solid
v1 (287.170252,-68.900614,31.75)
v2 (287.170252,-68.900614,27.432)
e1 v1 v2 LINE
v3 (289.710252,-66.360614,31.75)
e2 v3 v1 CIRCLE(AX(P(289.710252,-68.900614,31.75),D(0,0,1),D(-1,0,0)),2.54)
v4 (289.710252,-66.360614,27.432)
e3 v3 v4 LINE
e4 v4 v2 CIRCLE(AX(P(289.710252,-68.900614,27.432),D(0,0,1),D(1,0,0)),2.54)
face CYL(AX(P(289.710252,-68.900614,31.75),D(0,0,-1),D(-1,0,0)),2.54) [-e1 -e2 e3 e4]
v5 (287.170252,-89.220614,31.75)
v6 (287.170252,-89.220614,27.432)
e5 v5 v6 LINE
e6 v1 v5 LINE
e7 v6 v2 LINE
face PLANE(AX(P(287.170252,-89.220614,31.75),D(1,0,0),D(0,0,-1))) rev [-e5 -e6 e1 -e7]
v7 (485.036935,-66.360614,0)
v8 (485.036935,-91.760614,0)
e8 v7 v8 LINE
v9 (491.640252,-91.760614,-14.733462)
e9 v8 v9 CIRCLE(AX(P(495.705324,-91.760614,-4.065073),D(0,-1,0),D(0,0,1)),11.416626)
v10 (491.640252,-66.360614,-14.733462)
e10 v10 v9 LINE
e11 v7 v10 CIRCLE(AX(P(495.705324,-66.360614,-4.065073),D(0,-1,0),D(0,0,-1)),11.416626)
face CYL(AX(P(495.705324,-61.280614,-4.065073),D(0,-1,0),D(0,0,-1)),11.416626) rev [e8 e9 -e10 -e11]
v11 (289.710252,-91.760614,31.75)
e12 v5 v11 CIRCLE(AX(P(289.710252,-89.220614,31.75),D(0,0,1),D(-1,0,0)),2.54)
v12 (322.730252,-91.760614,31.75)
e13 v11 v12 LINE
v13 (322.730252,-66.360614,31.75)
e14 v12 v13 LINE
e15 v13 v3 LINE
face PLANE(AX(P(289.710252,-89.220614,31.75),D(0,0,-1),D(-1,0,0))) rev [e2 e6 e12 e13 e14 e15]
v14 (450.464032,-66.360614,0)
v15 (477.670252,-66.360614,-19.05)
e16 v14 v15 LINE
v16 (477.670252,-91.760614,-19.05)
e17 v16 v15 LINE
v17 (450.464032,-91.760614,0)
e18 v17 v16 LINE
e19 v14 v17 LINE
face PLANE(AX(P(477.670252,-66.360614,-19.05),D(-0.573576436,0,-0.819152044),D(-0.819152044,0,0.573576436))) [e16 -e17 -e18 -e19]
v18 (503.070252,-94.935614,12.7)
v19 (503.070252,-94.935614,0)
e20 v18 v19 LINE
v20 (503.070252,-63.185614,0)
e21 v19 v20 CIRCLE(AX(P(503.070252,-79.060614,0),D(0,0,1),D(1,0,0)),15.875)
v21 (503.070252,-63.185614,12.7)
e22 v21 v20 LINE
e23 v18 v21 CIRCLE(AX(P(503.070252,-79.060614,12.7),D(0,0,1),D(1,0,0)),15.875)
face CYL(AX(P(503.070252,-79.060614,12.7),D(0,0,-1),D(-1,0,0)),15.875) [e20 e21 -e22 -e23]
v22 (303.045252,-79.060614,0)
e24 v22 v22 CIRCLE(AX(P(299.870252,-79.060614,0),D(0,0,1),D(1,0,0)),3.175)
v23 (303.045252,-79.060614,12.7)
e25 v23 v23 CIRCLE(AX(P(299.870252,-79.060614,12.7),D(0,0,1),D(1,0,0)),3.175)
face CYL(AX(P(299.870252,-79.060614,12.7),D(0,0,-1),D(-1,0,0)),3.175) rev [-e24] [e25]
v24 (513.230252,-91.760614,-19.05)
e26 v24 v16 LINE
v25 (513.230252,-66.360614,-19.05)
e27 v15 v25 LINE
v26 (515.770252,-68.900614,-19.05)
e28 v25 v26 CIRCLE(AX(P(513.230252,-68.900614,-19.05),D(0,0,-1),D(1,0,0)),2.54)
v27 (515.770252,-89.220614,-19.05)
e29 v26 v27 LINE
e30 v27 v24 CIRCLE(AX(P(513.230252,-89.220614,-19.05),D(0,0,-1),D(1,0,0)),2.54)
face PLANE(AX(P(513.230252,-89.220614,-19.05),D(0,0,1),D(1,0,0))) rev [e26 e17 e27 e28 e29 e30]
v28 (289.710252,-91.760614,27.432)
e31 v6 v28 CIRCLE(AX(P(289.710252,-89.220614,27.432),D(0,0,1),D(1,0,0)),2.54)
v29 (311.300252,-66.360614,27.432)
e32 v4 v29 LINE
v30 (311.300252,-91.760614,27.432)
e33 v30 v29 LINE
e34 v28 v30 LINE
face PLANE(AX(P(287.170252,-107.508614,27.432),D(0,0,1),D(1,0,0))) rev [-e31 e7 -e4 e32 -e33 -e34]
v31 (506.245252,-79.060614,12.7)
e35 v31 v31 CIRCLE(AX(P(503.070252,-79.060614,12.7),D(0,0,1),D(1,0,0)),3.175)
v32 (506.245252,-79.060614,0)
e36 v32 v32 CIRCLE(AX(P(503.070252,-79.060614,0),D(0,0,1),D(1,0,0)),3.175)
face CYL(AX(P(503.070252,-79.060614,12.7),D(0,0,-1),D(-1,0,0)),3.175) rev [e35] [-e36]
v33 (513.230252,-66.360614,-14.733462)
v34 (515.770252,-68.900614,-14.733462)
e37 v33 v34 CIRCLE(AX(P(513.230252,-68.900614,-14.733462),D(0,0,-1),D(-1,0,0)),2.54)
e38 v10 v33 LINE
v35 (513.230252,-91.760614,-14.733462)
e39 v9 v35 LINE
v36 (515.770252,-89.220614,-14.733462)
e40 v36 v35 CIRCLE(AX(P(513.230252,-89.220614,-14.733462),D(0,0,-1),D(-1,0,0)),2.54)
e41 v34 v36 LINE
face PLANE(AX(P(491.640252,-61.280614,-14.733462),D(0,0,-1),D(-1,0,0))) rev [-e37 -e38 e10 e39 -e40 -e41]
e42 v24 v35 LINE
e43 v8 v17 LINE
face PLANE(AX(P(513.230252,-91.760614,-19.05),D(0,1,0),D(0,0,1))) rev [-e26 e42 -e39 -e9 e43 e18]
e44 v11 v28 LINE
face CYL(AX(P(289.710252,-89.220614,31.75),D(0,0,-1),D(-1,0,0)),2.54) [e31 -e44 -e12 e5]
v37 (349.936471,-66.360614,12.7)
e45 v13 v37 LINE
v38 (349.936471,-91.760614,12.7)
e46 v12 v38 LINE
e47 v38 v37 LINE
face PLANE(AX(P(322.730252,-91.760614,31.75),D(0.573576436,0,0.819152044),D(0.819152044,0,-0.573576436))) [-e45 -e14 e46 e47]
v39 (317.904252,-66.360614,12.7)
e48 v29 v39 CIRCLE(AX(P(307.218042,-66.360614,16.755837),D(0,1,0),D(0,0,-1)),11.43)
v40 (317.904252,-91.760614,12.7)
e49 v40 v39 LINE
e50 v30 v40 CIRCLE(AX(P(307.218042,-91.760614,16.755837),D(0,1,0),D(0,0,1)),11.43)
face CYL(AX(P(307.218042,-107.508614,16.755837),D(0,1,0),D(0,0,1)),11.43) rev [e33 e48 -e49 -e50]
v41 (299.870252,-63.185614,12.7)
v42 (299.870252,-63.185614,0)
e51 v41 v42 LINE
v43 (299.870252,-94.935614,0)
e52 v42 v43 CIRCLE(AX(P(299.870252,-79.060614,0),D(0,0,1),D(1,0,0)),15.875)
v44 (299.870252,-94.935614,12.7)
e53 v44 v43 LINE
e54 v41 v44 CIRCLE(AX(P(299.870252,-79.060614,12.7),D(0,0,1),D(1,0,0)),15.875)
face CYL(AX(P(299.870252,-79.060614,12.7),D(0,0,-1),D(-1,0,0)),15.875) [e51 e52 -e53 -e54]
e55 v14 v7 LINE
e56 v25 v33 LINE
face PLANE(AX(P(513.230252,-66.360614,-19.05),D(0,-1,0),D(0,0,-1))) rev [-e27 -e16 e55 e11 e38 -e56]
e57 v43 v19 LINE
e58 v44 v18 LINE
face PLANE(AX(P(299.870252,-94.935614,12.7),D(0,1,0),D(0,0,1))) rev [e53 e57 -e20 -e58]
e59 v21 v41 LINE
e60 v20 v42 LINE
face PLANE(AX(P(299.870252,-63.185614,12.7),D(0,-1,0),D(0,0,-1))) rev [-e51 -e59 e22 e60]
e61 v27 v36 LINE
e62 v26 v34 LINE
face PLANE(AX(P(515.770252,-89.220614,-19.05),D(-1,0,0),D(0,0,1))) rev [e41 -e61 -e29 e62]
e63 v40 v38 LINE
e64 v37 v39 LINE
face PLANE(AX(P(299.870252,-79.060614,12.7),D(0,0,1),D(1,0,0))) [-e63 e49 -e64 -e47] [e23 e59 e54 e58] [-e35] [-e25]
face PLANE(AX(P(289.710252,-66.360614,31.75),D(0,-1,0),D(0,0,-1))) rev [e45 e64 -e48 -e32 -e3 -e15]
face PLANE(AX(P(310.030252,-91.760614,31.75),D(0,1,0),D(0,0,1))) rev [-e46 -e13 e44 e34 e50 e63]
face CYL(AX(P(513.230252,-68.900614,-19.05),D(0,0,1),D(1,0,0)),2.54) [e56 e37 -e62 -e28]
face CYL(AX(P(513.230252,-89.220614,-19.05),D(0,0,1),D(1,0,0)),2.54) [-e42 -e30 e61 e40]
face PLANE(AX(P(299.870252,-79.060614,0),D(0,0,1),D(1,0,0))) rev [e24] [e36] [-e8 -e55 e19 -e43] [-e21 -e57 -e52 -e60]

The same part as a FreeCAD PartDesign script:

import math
import FreeCAD as App
import Part
import Sketcher
Q = App.Units.Quantity


def add_polygon(sketch, points):
    """Adds a closed chain of lines whose ends are joined by coincident constraints."""
    first, n = sketch.GeometryCount, len(points)
    for a, b in zip(points, points[1:] + points[:1]):
        sketch.addGeometry(Part.LineSegment(App.Vector(*a, 0), App.Vector(*b, 0)), False)
    for i in range(n):
        sketch.addConstraint(Sketcher.Constraint("Coincident", first + i, 2, first + (i + 1) % n, 1))

doc = App.newDocument("Part")
params = doc.addObject("Spreadsheet::Sheet", "Params")
for row, (alias, value) in enumerate([
    ("sketch1_diameter", "0.25 in"),
    ("sketch1_width", "8 in"),
    ("sketch1_radius", "0.625 in"),
    ("pad1_length", "0.5 in"),
    ("sketch2_radius", "0.1 in"),
    ("sketch2_height", "1 in"),
    ("sketch2_width", "1.4 in"),
    ("pad2_length", "0.75 in"),
    ("sketch3_width", "0.95 in"),
    ("pocket1_length", "1.2 in"),
    ("sketch4_height", "0.75 in"),
    ("pad3_length", "1 in"),
    ("sketch5_radius", "0.1 in"),
    ("sketch5_height", "1 in"),
    ("sketch5_width", "1.3 in"),
    ("pad4_length", "0.75 in"),
    ("sketch6_radius", "0.45 in"),
    ("sketch6_width", "1.21 in"),
    ("sketch6_width2", "0.95 in"),
    ("sketch6_height", "0.58 in"),
    ("pocket2_length", "1.62 in"),
    ("sketch7_height", "0.75 in"),
    ("pad5_length", "1 in"),
], start=1):
    params.set(f"A{row}", alias)
    params.set(f"B{row}", "=" + value)
    params.setAlias(f"B{row}", alias)

body = doc.addObject("PartDesign::Body", "Body")

# Sketch on XY plane
sketch1 = body.newObject("Sketcher::SketchObject", "Sketch")
sketch1.AttachmentSupport = (doc.getObject("XY_Plane"), [""])
sketch1.MapMode = "FlatFace"
sketch1.addGeometry([
    Part.LineSegment(App.Vector(503.1, -63.2, 0), App.Vector(299.9, -63.2, 0)),  # 0
    Part.ArcOfCircle(Part.Circle(App.Vector(299.9, -79.1, 0), App.Vector(0, 0, 1), 15.9), math.radians(90), math.radians(270)),  # 1
    Part.LineSegment(App.Vector(299.9, -94.9, 0), App.Vector(503.1, -94.9, 0)),  # 2
    Part.ArcOfCircle(Part.Circle(App.Vector(503.1, -79.1, 0), App.Vector(0, 0, 1), 15.9), math.radians(-90), math.radians(90)),  # 3
    Part.Circle(App.Vector(503.1, -79.1, 0), App.Vector(0, 0, 1), 3.2),  # 4
    Part.Circle(App.Vector(299.9, -79.1, 0), App.Vector(0, 0, 1), 3.2),  # 5
], False)
sketch1.addConstraint([
    Sketcher.Constraint("Tangent", 0, 2, 1, 1),
    Sketcher.Constraint("Tangent", 1, 2, 2, 1),
    Sketcher.Constraint("Tangent", 2, 2, 3, 1),
    Sketcher.Constraint("Tangent", 3, 2, 0, 1),
    Sketcher.Constraint("Horizontal", 0),
    Sketcher.Constraint("Horizontal", 2),
    Sketcher.Constraint("Coincident", 4, 3, 3, 3),
    Sketcher.Constraint("Coincident", 5, 3, 1, 3),
    Sketcher.Constraint("Equal", 4, 5),
    Sketcher.Constraint("Diameter", 4, Q("0.25 in")),
    Sketcher.Constraint("DistanceX", 0, 2, 0, 1, Q("8 in")),
    Sketcher.Constraint("Radius", 1, Q("0.625 in")),
    Sketcher.Constraint("DistanceX", -1, 1, 1, 3, 299.870252),
    Sketcher.Constraint("DistanceY", 1, 3, -1, 1, 79.060614),
])
sketch1.setExpression("Constraints[9]", "Params.sketch1_diameter")
sketch1.setExpression("Constraints[10]", "Params.sketch1_width")
sketch1.setExpression("Constraints[11]", "Params.sketch1_radius")
pad1 = body.newObject("PartDesign::Pad", "Pad")
pad1.Profile = sketch1
pad1.setExpression("Length", "Params.pad1_length")

# Sketch on XY plane
sketch2 = body.newObject("Sketcher::SketchObject", "Sketch001")
sketch2.AttachmentSupport = (doc.getObject("XY_Plane"), [""])
sketch2.MapMode = "FlatFace"
sketch2.addGeometry([
    Part.LineSegment(App.Vector(477.7, -91.8, 0), App.Vector(477.7, -66.4, 0)),  # 0
    Part.LineSegment(App.Vector(477.7, -66.4, 0), App.Vector(513.2, -66.4, 0)),  # 1
    Part.ArcOfCircle(Part.Circle(App.Vector(513.2, -68.9, 0), App.Vector(0, 0, 1), 2.5), math.radians(0), math.radians(90)),  # 2
    Part.LineSegment(App.Vector(515.8, -68.9, 0), App.Vector(515.8, -89.2, 0)),  # 3
    Part.ArcOfCircle(Part.Circle(App.Vector(513.2, -89.2, 0), App.Vector(0, 0, 1), 2.5), math.radians(-90), math.radians(0)),  # 4
    Part.LineSegment(App.Vector(513.2, -91.8, 0), App.Vector(477.7, -91.8, 0)),  # 5
], False)
sketch2.addConstraint([
    Sketcher.Constraint("Coincident", 0, 2, 1, 1),
    Sketcher.Constraint("Tangent", 1, 2, 2, 2),
    Sketcher.Constraint("Tangent", 2, 1, 3, 1),
    Sketcher.Constraint("Tangent", 3, 2, 4, 2),
    Sketcher.Constraint("Tangent", 4, 1, 5, 1),
    Sketcher.Constraint("Coincident", 5, 2, 0, 1),
    Sketcher.Constraint("Vertical", 0),
    Sketcher.Constraint("Horizontal", 1),
    Sketcher.Constraint("Vertical", 3),
    Sketcher.Constraint("Horizontal", 5),
    Sketcher.Constraint("Equal", 2, 4),
    Sketcher.Constraint("Radius", 2, Q("0.1 in")),
    Sketcher.Constraint("DistanceY", 0, 1, 0, 2, Q("1 in")),
    Sketcher.Constraint("DistanceX", 1, 1, 1, 2, Q("1.4 in")),
    Sketcher.Constraint("DistanceX", -1, 1, 2, 3, 513.230252),
    Sketcher.Constraint("DistanceY", 2, 3, -1, 1, 68.900614),
])
sketch2.setExpression("Constraints[11]", "Params.sketch2_radius")
sketch2.setExpression("Constraints[12]", "Params.sketch2_height")
sketch2.setExpression("Constraints[13]", "Params.sketch2_width")
pad2 = body.newObject("PartDesign::Pad", "Pad001")
pad2.Profile = sketch2
pad2.setExpression("Length", "Params.pad2_length")
pad2.Reversed = True

# Sketch on XZ plane
sketch3 = body.newObject("Sketcher::SketchObject", "Sketch002")
sketch3.AttachmentSupport = (doc.getObject("XZ_Plane"), [""])
sketch3.MapMode = "FlatFace"
sketch3.AttachmentOffset = App.Placement(App.Vector(0, 0, 91.760614), App.Rotation())
sketch3.addGeometry([
    Part.LineSegment(App.Vector(516, -15, 0), App.Vector(516, 0, 0)),
    Part.LineSegment(App.Vector(516, 0, 0), App.Vector(485, 0, 0)),
    Part.ArcOfCircle(Part.Circle(App.Vector(496, -4, 0), App.Vector(0, 0, 1), 11), math.radians(159), math.radians(249)),
    Part.LineSegment(App.Vector(492, -15, 0), App.Vector(516, -15, 0)),
], False)
sketch3.addConstraint([
    Sketcher.Constraint("Coincident", 0, 2, 1, 1),
    Sketcher.Constraint("Coincident", 1, 2, 2, 1),
    Sketcher.Constraint("Coincident", 2, 2, 3, 1),
    Sketcher.Constraint("Coincident", 3, 2, 0, 1),
    Sketcher.Constraint("Vertical", 0),
    Sketcher.Constraint("Horizontal", 1),
    Sketcher.Constraint("Horizontal", 3),
    Sketcher.Constraint("PointOnObject", 0, 2, -1),
    Sketcher.Constraint("DistanceX", 3, 1, 3, 2, Q("0.95 in")),
    Sketcher.Constraint("Radius", 2, 11.416626),
    Sketcher.Constraint("DistanceX", 1, 2, 1, 1, 30.733317),
    Sketcher.Constraint("DistanceY", 0, 1, 0, 2, 14.733462),
    Sketcher.Constraint("DistanceX", -1, 1, 0, 2, 515.770252),
])
sketch3.setExpression("Constraints[8]", "Params.sketch3_width")
pocket1 = body.newObject("PartDesign::Pocket", "Pocket")
pocket1.Profile = sketch3
pocket1.setExpression("Length", "Params.pocket1_length")

# Sketch on XZ plane
sketch4 = body.newObject("Sketcher::SketchObject", "Sketch003")
sketch4.AttachmentSupport = (doc.getObject("XZ_Plane"), [""])
sketch4.MapMode = "FlatFace"
sketch4.AttachmentOffset = App.Placement(App.Vector(0, 0, 91.760614), App.Rotation())
add_polygon(sketch4, [(450, 0), (478, -19), (478, 0)])  # lines 0-2
sketch4.addConstraint([
    Sketcher.Constraint("Vertical", 1),
    Sketcher.Constraint("Horizontal", 2),
    Sketcher.Constraint("PointOnObject", 1, 2, -1),
    Sketcher.Constraint("Angle", 0, Q("-35 deg")),
    Sketcher.Constraint("DistanceY", 1, 1, 1, 2, Q("0.75 in")),
    Sketcher.Constraint("DistanceX", -1, 1, 0, 2, 477.670252),
])
sketch4.setExpression("Constraints[7]", "Params.sketch4_height")
pad3 = body.newObject("PartDesign::Pad", "Pad002")
pad3.Profile = sketch4
pad3.setExpression("Length", "Params.pad3_length")
pad3.Reversed = True

# Sketch on XY plane
sketch5 = body.newObject("Sketcher::SketchObject", "Sketch004")
sketch5.AttachmentSupport = (doc.getObject("XY_Plane"), [""])
sketch5.MapMode = "FlatFace"
sketch5.AttachmentOffset = App.Placement(App.Vector(0, 0, 0.5 * 25.4), App.Rotation())
sketch5.addGeometry([
    Part.LineSegment(App.Vector(322.7, -91.8, 0), App.Vector(322.7, -66.4, 0)),  # 0
    Part.LineSegment(App.Vector(322.7, -66.4, 0), App.Vector(289.7, -66.4, 0)),  # 1
    Part.ArcOfCircle(Part.Circle(App.Vector(289.7, -68.9, 0), App.Vector(0, 0, 1), 2.5), math.radians(90), math.radians(180)),  # 2
    Part.LineSegment(App.Vector(287.2, -68.9, 0), App.Vector(287.2, -89.2, 0)),  # 3
    Part.ArcOfCircle(Part.Circle(App.Vector(289.7, -89.2, 0), App.Vector(0, 0, 1), 2.5), math.radians(-180), math.radians(-90)),  # 4
    Part.LineSegment(App.Vector(289.7, -91.8, 0), App.Vector(322.7, -91.8, 0)),  # 5
], False)
sketch5.addConstraint([
    Sketcher.Constraint("Coincident", 0, 2, 1, 1),
    Sketcher.Constraint("Tangent", 1, 2, 2, 1),
    Sketcher.Constraint("Tangent", 2, 2, 3, 1),
    Sketcher.Constraint("Tangent", 3, 2, 4, 1),
    Sketcher.Constraint("Tangent", 4, 2, 5, 1),
    Sketcher.Constraint("Coincident", 5, 2, 0, 1),
    Sketcher.Constraint("Vertical", 0),
    Sketcher.Constraint("Horizontal", 1),
    Sketcher.Constraint("Vertical", 3),
    Sketcher.Constraint("Horizontal", 5),
    Sketcher.Constraint("Equal", 2, 4),
    Sketcher.Constraint("Radius", 2, Q("0.1 in")),
    Sketcher.Constraint("DistanceY", 0, 1, 0, 2, Q("1 in")),
    Sketcher.Constraint("DistanceX", 1, 2, 1, 1, Q("1.3 in")),
    Sketcher.Constraint("DistanceX", -1, 1, 2, 3, 289.710252),
    Sketcher.Constraint("DistanceY", 2, 3, -1, 1, 68.900614),
])
sketch5.setExpression("Constraints[11]", "Params.sketch5_radius")
sketch5.setExpression("Constraints[12]", "Params.sketch5_height")
sketch5.setExpression("Constraints[13]", "Params.sketch5_width")
pad4 = body.newObject("PartDesign::Pad", "Pad003")
pad4.Profile = sketch5
pad4.setExpression("Length", "Params.pad4_length")

# Sketch on XZ plane
sketch6 = body.newObject("Sketcher::SketchObject", "Sketch005")
sketch6.AttachmentSupport = (doc.getObject("XZ_Plane"), [""])
sketch6.MapMode = "FlatFace"
sketch6.AttachmentOffset = App.Placement(App.Vector(0, 0, 66.360614), App.Rotation())
sketch6.addGeometry([
    Part.LineSegment(App.Vector(318, 13, 0), App.Vector(287, 13, 0)),
    Part.LineSegment(App.Vector(287, 13, 0), App.Vector(287, 27, 0)),
    Part.LineSegment(App.Vector(287, 27, 0), App.Vector(311, 27, 0)),
    Part.ArcOfCircle(Part.Circle(App.Vector(307, 17, 0), App.Vector(0, 0, 1), 11), math.radians(-21), math.radians(69)),
], False)
sketch6.addConstraint([
    Sketcher.Constraint("Coincident", 0, 2, 1, 1),
    Sketcher.Constraint("Coincident", 1, 2, 2, 1),
    Sketcher.Constraint("Coincident", 2, 2, 3, 2),
    Sketcher.Constraint("Coincident", 3, 1, 0, 1),
    Sketcher.Constraint("Horizontal", 0),
    Sketcher.Constraint("Vertical", 1),
    Sketcher.Constraint("Horizontal", 2),
    Sketcher.Constraint("Radius", 3, Q("0.45 in")),
    Sketcher.Constraint("DistanceX", 0, 2, 0, 1, Q("1.21 in")),
    Sketcher.Constraint("DistanceX", 2, 1, 2, 2, Q("0.95 in")),
    Sketcher.Constraint("DistanceY", 1, 1, 1, 2, Q("0.58 in")),
    Sketcher.Constraint("DistanceY", -1, 1, 0, 2, Q("0.5 in")),
    Sketcher.Constraint("DistanceX", -1, 1, 3, 3, 307.218042),
])
sketch6.setExpression("Constraints[7]", "Params.sketch6_radius")
sketch6.setExpression("Constraints[8]", "Params.sketch6_width")
sketch6.setExpression("Constraints[9]", "Params.sketch6_width2")
sketch6.setExpression("Constraints[10]", "Params.sketch6_height")
pocket2 = body.newObject("PartDesign::Pocket", "Pocket001")
pocket2.Profile = sketch6
pocket2.setExpression("Length", "Params.pocket2_length")
pocket2.Reversed = True

# Sketch on XZ plane
sketch7 = body.newObject("Sketcher::SketchObject", "Sketch006")
sketch7.AttachmentSupport = (doc.getObject("XZ_Plane"), [""])
sketch7.MapMode = "FlatFace"
sketch7.AttachmentOffset = App.Placement(App.Vector(0, 0, 66.360614), App.Rotation())
add_polygon(sketch7, [(323, 32), (350, 13), (323, 13)])  # lines 0-2
sketch7.addConstraint([
    Sketcher.Constraint("Horizontal", 1),
    Sketcher.Constraint("Vertical", 2),
    Sketcher.Constraint("Angle", 0, Q("-35 deg")),
    Sketcher.Constraint("DistanceY", 2, 1, 2, 2, Q("0.75 in")),
    Sketcher.Constraint("DistanceY", -1, 1, 0, 2, Q("0.5 in")),
    Sketcher.Constraint("DistanceX", -1, 1, 0, 2, 349.936471),
])
sketch7.setExpression("Constraints[6]", "Params.sketch7_height")
pad5 = body.newObject("PartDesign::Pad", "Pad004")
pad5.Profile = sketch7
pad5.setExpression("Length", "Params.pad5_length")

doc.recompute()
